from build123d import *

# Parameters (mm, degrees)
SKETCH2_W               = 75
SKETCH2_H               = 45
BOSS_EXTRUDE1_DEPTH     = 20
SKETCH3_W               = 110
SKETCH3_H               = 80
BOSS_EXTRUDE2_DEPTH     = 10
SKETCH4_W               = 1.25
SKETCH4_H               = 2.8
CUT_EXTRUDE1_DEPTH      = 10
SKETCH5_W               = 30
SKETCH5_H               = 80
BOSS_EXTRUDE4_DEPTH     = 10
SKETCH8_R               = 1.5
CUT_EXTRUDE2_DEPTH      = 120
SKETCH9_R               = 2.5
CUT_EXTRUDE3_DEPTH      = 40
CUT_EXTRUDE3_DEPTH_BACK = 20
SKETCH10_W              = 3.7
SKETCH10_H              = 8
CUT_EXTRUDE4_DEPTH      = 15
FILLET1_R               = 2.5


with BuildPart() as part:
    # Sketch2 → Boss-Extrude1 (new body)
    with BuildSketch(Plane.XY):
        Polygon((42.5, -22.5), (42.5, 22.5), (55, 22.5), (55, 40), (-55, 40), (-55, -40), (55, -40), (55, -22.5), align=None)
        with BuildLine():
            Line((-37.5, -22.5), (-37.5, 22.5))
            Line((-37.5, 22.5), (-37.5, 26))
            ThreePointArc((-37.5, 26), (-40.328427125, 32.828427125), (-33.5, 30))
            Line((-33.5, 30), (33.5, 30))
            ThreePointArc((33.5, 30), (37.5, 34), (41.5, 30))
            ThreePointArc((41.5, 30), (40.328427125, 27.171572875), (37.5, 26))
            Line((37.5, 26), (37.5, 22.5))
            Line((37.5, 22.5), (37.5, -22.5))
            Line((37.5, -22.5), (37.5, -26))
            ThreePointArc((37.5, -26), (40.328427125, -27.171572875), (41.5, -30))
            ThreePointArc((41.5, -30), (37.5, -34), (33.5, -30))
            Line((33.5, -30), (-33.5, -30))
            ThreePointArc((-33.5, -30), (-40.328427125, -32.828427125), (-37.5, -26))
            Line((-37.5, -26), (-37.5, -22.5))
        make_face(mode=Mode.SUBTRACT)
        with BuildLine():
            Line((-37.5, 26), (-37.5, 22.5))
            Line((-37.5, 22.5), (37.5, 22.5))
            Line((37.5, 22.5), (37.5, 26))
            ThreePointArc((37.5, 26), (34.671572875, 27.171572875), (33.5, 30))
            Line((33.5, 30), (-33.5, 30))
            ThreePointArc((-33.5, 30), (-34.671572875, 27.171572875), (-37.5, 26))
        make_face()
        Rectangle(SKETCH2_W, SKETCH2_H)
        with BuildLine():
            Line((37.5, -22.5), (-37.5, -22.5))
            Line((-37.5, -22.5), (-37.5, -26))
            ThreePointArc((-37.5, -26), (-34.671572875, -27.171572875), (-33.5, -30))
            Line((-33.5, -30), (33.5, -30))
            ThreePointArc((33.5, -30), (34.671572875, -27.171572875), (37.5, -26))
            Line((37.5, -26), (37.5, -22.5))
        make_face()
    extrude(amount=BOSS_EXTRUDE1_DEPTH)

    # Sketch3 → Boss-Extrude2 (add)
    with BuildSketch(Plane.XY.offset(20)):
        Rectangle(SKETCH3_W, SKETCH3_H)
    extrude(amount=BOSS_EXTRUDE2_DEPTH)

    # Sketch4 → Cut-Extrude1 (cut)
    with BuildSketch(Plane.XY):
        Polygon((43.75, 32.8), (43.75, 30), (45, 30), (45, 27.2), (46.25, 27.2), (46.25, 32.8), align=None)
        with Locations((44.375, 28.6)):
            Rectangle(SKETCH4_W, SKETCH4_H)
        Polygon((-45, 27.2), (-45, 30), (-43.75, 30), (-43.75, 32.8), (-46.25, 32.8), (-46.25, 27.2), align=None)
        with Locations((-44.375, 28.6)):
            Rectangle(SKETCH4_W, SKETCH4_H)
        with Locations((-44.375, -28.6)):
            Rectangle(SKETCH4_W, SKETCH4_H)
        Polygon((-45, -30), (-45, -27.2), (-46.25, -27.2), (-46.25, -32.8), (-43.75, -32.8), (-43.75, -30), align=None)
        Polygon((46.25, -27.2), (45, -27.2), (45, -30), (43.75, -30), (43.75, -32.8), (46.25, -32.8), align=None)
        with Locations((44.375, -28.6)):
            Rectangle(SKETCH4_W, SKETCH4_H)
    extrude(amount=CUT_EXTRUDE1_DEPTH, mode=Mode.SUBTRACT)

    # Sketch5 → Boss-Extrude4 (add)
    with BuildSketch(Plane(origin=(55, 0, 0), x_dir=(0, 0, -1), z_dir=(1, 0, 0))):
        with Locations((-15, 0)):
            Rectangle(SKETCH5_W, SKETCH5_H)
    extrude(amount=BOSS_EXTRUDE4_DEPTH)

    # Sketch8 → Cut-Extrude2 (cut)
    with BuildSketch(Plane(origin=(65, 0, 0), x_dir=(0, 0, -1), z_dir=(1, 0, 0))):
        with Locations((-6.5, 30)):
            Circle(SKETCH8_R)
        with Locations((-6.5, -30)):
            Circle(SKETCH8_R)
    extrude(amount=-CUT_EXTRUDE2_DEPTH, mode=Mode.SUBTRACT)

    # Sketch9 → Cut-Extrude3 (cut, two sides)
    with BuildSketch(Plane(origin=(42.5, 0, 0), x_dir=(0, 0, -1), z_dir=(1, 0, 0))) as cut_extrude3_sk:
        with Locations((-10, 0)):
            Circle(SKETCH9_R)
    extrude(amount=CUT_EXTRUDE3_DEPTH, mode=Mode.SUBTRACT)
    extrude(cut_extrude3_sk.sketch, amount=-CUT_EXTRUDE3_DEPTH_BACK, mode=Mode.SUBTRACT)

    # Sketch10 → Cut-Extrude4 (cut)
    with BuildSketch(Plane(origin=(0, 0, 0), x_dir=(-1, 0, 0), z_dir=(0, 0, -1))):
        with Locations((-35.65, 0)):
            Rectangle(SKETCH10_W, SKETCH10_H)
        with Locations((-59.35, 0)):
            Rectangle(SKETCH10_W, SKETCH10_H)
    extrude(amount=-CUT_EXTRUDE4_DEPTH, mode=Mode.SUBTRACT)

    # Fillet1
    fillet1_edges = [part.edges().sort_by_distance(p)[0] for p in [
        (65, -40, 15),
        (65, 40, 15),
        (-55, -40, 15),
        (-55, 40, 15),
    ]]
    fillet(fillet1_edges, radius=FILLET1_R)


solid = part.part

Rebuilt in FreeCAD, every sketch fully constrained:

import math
import FreeCAD as App
import Part
import Sketcher

V = App.Vector


def edges_at(feature, points):
    """Names of the edges that pass closest to the given points."""
    edges = feature.Shape.Edges
    near = lambda p: min(range(len(edges)), key=lambda i: edges[i].distToShape(Part.Vertex(*p))[0])
    return sorted({f"Edge{near(p) + 1}" for p in points})


def add_polygon(sketch, points):
    """Adds a closed chain of lines whose ends are joined by coincident constraints."""
    first, n = sketch.GeometryCount, len(points)
    for a, b in zip(points, points[1:] + points[:1]):
        sketch.addGeometry(Part.LineSegment(App.Vector(*a, 0), App.Vector(*b, 0)), False)
    for i in range(n):
        sketch.addConstraint(Sketcher.Constraint("Coincident", first + i, 2, first + (i + 1) % n, 1))

doc = App.newDocument("Part")
body = doc.addObject("PartDesign::Body", "Body")

sketch1 = body.newObject("Sketcher::SketchObject", "Sketch")
sketch1.AttachmentSupport = (doc.getObject("XY_Plane"), [""])
sketch1.MapMode = "FlatFace"
add_polygon(sketch1, [(42.5, -22.5), (42.5, 22.5), (55, 22.5), (55, 40), (-55, 40), (-55, -40), (55, -40), (55, -22.5)])
sketch1.addGeometry(Part.ArcOfCircle(Part.Circle(V(37.5, -30, 0), V(0, 0, 1), 4), math.radians(0), math.radians(90)), False)
sketch1.addGeometry(Part.ArcOfCircle(Part.Circle(V(37.5, -30, 0), V(0, 0, 1), 4), math.radians(180), math.radians(360)), False)
sketch1.addGeometry(Part.ArcOfCircle(Part.Circle(V(37.5, -30, 0), V(0, 0, 1), 4), math.radians(90), math.radians(180)), False)
sketch1.addGeometry(Part.ArcOfCircle(Part.Circle(V(-37.5, -30, 0), V(0, 0, 1), 4), math.radians(90), math.radians(360)), False)
sketch1.addGeometry(Part.ArcOfCircle(Part.Circle(V(-37.5, -30, 0), V(0, 0, 1), 4), math.radians(0), math.radians(90)), False)
sketch1.addGeometry(Part.ArcOfCircle(Part.Circle(V(37.5, 30, 0), V(0, 0, 1), 4), math.radians(-90), math.radians(0)), False)
sketch1.addGeometry(Part.ArcOfCircle(Part.Circle(V(37.5, 30, 0), V(0, 0, 1), 4), math.radians(180), math.radians(270)), False)
sketch1.addGeometry(Part.ArcOfCircle(Part.Circle(V(37.5, 30, 0), V(0, 0, 1), 4), math.radians(0), math.radians(180)), False)
sketch1.addGeometry(Part.ArcOfCircle(Part.Circle(V(-37.5, 30, 0), V(0, 0, 1), 4), math.radians(0), math.radians(270)), False)
sketch1.addGeometry(Part.ArcOfCircle(Part.Circle(V(-37.5, 30, 0), V(0, 0, 1), 4), math.radians(-90), math.radians(0)), False)
sketch1.addConstraint([
    Sketcher.Constraint("Tangent", 8, 1, 9, 2),
    Sketcher.Constraint("Tangent", 9, 1, 10, 2),
    Sketcher.Constraint("Tangent", 10, 1, 8, 2),
    Sketcher.Constraint("Tangent", 11, 1, 12, 2),
    Sketcher.Constraint("Coincident", 12, 1, 11, 2),
    Sketcher.Constraint("Tangent", 13, 1, 14, 2),
    Sketcher.Constraint("Tangent", 14, 1, 15, 2),
    Sketcher.Constraint("Tangent", 15, 1, 13, 2),
    Sketcher.Constraint("Tangent", 16, 1, 17, 2),
    Sketcher.Constraint("Coincident", 17, 1, 16, 2),
    Sketcher.Constraint("Vertical", 0),
    Sketcher.Constraint("Horizontal", 1),
    Sketcher.Constraint("Vertical", 2),
    Sketcher.Constraint("Horizontal", 3),
    Sketcher.Constraint("Vertical", 4),
    Sketcher.Constraint("Horizontal", 5),
    Sketcher.Constraint("Vertical", 6),
    Sketcher.Constraint("Horizontal", 7),
    Sketcher.Constraint("Equal", 10, 11),
    Sketcher.Constraint("Equal", 12, 13),
    Sketcher.Constraint("Equal", 15, 16),
    Sketcher.Constraint("Symmetric", 11, 3, 13, 3, -1, 1),
    Sketcher.Constraint("Symmetric", 8, 3, 16, 3, -1, 1),
    Sketcher.Constraint("Symmetric", 2, 2, 4, 2, -1, 1),
    Sketcher.Constraint("Symmetric", 8, 3, 11, 3, -2),
    Sketcher.Constraint("Symmetric", 1, 2, 6, 2, -1),
    Sketcher.Constraint("Horizontal", 12, 3, 8, 1),
    Sketcher.Constraint("Horizontal", 8, 1, 9, 1),
    Sketcher.Constraint("Horizontal", 9, 1, 12, 1),
    Sketcher.Constraint("Horizontal", 17, 3, 14, 1),
    Sketcher.Constraint("Horizontal", 14, 1, 15, 1),
    Sketcher.Constraint("Horizontal", 15, 1, 16, 1),
    Sketcher.Constraint("Vertical", 15, 3, 10, 1),
    Sketcher.Constraint("Vertical", 17, 3, 11, 1),
    Sketcher.Constraint("Vertical", 10, 1, 13, 1),
    Sketcher.Constraint("Vertical", 11, 1, 17, 1),
    Sketcher.Constraint("Radius", 8, 4.0),
    Sketcher.Constraint("DistanceX", 3, 2, 3, 1, 110.0),
    Sketcher.Constraint("DistanceY", 0, 1, 0, 2, 45.0),
    Sketcher.Constraint("DistanceY", 4, 2, 4, 1, 80.0),
    Sketcher.Constraint("DistanceX", 1, 1, 1, 2, 12.5),
    Sketcher.Constraint("DistanceY", 8, 3, -1, 1, 30.0),
    Sketcher.Constraint("DistanceX", 11, 3, 10, 3, 75.0),
])
pad1 = body.newObject("PartDesign::Pad", "Pad")
pad1.Profile = sketch1
pad1.Length = 20

sketch2 = body.newObject("Sketcher::SketchObject", "Sketch001")
sketch2.AttachmentSupport = (doc.getObject("XY_Plane"), [""])
sketch2.MapMode = "FlatFace"
sketch2.AttachmentOffset = App.Placement(V(0, 0, 20), App.Rotation())
add_polygon(sketch2, [(-55, 40), (-55, -40), (55, -40), (55, 40)])
sketch2.addConstraint([
    Sketcher.Constraint("Vertical", 0),
    Sketcher.Constraint("Horizontal", 1),
    Sketcher.Constraint("Vertical", 2),
    Sketcher.Constraint("Horizontal", 3),
    Sketcher.Constraint("Symmetric", 0, 2, 2, 2, -1, 1),
    Sketcher.Constraint("DistanceX", 1, 1, 1, 2, 110.0),
    Sketcher.Constraint("DistanceY", 0, 2, 0, 1, 80.0),
])
pad2 = body.newObject("PartDesign::Pad", "Pad001")
pad2.Profile = sketch2
pad2.Length = 10

sketch3 = body.newObject("Sketcher::SketchObject", "Sketch002")
sketch3.AttachmentSupport = (doc.getObject("XY_Plane"), [""])
sketch3.MapMode = "FlatFace"
add_polygon(sketch3, [(43.8, 32.8), (43.8, 27.2), (46.2, 27.2), (46.2, 32.8)])
add_polygon(sketch3, [(-43.8, 32.8), (-46.2, 32.8), (-46.2, 27.2), (-43.8, 27.2)])
add_polygon(sketch3, [(-43.8, -27.2), (-46.2, -27.2), (-46.2, -32.8), (-43.8, -32.8)])
add_polygon(sketch3, [(46.2, -27.2), (43.8, -27.2), (43.8, -32.8), (46.2, -32.8)])
sketch3.addConstraint([
    Sketcher.Constraint("Vertical", 0),
    Sketcher.Constraint("Horizontal", 1),
    Sketcher.Constraint("Vertical", 2),
    Sketcher.Constraint("Horizontal", 3),
    Sketcher.Constraint("Horizontal", 4),
    Sketcher.Constraint("Vertical", 5),
    Sketcher.Constraint("Horizontal", 6),
    Sketcher.Constraint("Vertical", 7),
    Sketcher.Constraint("Horizontal", 8),
    Sketcher.Constraint("Vertical", 9),
    Sketcher.Constraint("Horizontal", 10),
    Sketcher.Constraint("Vertical", 11),
    Sketcher.Constraint("Horizontal", 12),
    Sketcher.Constraint("Vertical", 13),
    Sketcher.Constraint("Horizontal", 14),
    Sketcher.Constraint("Vertical", 15),
    Sketcher.Constraint("Symmetric", 1, 2, 8, 2, -1, 1),
    Sketcher.Constraint("Symmetric", 3, 2, 10, 2, -1, 1),
    Sketcher.Constraint("Symmetric", 6, 2, 12, 2, -1, 1),
    Sketcher.Constraint("Symmetric", 4, 2, 14, 2, -1, 1),
    Sketcher.Constraint("Symmetric", 2, 2, 4, 2, -2),
    Sketcher.Constraint("Symmetric", 0, 2, 6, 2, -2),
    Sketcher.Constraint("DistanceX", 1, 1, 1, 2, 2.5),
    Sketcher.Constraint("DistanceY", 0, 2, 0, 1, 5.6),
    Sketcher.Constraint("DistanceX", 4, 2, 3, 2, 90.0),
    Sketcher.Constraint("DistanceY", 8, 2, 4, 2, 60.0),
])
pocket1 = body.newObject("PartDesign::Pocket", "Pocket")
pocket1.Profile = sketch3
pocket1.Length = 10
pocket1.Reversed = True

sketch4 = body.newObject("Sketcher::SketchObject", "Sketch003")
sketch4.AttachmentSupport = (doc.getObject("YZ_Plane"), [""])
sketch4.MapMode = "FlatFace"
sketch4.AttachmentOffset = App.Placement(V(0, 0, 55), App.Rotation())
add_polygon(sketch4, [(40, 30), (-40, 30), (-40, 0), (40, 0)])
sketch4.addConstraint([
    Sketcher.Constraint("Horizontal", 0),
    Sketcher.Constraint("Vertical", 1),
    Sketcher.Constraint("Horizontal", 2),
    Sketcher.Constraint("Vertical", 3),
    Sketcher.Constraint("Symmetric", 1, 2, 2, 2, -1, 1),
    Sketcher.Constraint("DistanceX", 0, 2, 0, 1, 80.0),
    Sketcher.Constraint("DistanceY", 1, 2, 1, 1, 30.0),
])
pad3 = body.newObject("PartDesign::Pad", "Pad002")
pad3.Profile = sketch4
pad3.Length = 10

sketch5 = body.newObject("Sketcher::SketchObject", "Sketch004")
sketch5.AttachmentSupport = (doc.getObject("YZ_Plane"), [""])
sketch5.MapMode = "FlatFace"
sketch5.AttachmentOffset = App.Placement(V(0, 0, 65), App.Rotation())
sketch5.addGeometry([
    Part.Circle(V(30, 6.5, 0), V(0, 0, 1), 1.5),
    Part.Circle(V(-30, 6.5, 0), V(0, 0, 1), 1.5),
], False)
sketch5.addConstraint([
    Sketcher.Constraint("Equal", 0, 1),
    Sketcher.Constraint("Symmetric", 0, 3, 1, 3, -2),
    Sketcher.Constraint("Diameter", 0, 3.0),
    Sketcher.Constraint("DistanceX", -1, 1, 0, 3, 30.0),
    Sketcher.Constraint("DistanceY", -1, 1, 0, 3, 6.5),
])
pocket2 = body.newObject("PartDesign::Pocket", "Pocket001")
pocket2.Profile = sketch5
pocket2.Length = 120

sketch6 = body.newObject("Sketcher::SketchObject", "Sketch005")
sketch6.AttachmentSupport = (doc.getObject("YZ_Plane"), [""])
sketch6.MapMode = "FlatFace"
sketch6.AttachmentOffset = App.Placement(V(0, 0, 42.5), App.Rotation())
sketch6.addGeometry(Part.Circle(V(0, 10, 0), V(0, 0, 1), 2.5), False)
sketch6.addConstraint([
    Sketcher.Constraint("PointOnObject", 0, 3, -2),
    Sketcher.Constraint("Diameter", 0, 5.0),
    Sketcher.Constraint("DistanceY", -1, 1, 0, 3, 10.0),
])
pocket3 = body.newObject("PartDesign::Pocket", "Pocket002")
pocket3.Profile = sketch6
pocket3.Type = "TwoLengths"
pocket3.Length = 40
pocket3.Length2 = 20
pocket3.Reversed = True

sketch7 = body.newObject("Sketcher::SketchObject", "Sketch006")
sketch7.AttachmentSupport = (doc.getObject("XY_Plane"), [""])
sketch7.MapMode = "FlatFace"
add_polygon(sketch7, [(37.5, 4), (37.5, -4), (33.8, -4), (33.8, 4)])
add_polygon(sketch7, [(61.2, 4), (61.2, -4), (57.5, -4), (57.5, 4)])
sketch7.addConstraint([
    Sketcher.Constraint("Vertical", 0),
    Sketcher.Constraint("Horizontal", 1),
    Sketcher.Constraint("Vertical", 2),
    Sketcher.Constraint("Horizontal", 3),
    Sketcher.Constraint("Vertical", 4),
    Sketcher.Constraint("Horizontal", 5),
    Sketcher.Constraint("Vertical", 6),
    Sketcher.Constraint("Horizontal", 7),
    Sketcher.Constraint("Horizontal", 1, 2, 4, 2),
    Sketcher.Constraint("Horizontal", 3, 2, 6, 2),
    Sketcher.Constraint("Equal", 3, 5),
    Sketcher.Constraint("DistanceY", 0, 2, 0, 1, 8.0),
    Sketcher.Constraint("DistanceX", 1, 2, 1, 1, 3.7),
    Sketcher.Constraint("DistanceY", 0, 2, -1, 1, 4.0),
    Sketcher.Constraint("DistanceX", 0, 2, 5, 2, 20.0),
    Sketcher.Constraint("DistanceX", -1, 1, 0, 2, 37.5),
])
pocket4 = body.newObject("PartDesign::Pocket", "Pocket003")
pocket4.Profile = sketch7
pocket4.Length = 15
pocket4.Reversed = True
doc.recompute()

fillet = body.newObject("PartDesign::Fillet", "Fillet")
fillet.Base = (pocket4, edges_at(pocket4, [
    (65, -40, 15),
    (65, 40, 15),
    (-55, -40, 15),
    (-55, 40, 15),
]))
fillet.Radius = 2.5

doc.recompute()
